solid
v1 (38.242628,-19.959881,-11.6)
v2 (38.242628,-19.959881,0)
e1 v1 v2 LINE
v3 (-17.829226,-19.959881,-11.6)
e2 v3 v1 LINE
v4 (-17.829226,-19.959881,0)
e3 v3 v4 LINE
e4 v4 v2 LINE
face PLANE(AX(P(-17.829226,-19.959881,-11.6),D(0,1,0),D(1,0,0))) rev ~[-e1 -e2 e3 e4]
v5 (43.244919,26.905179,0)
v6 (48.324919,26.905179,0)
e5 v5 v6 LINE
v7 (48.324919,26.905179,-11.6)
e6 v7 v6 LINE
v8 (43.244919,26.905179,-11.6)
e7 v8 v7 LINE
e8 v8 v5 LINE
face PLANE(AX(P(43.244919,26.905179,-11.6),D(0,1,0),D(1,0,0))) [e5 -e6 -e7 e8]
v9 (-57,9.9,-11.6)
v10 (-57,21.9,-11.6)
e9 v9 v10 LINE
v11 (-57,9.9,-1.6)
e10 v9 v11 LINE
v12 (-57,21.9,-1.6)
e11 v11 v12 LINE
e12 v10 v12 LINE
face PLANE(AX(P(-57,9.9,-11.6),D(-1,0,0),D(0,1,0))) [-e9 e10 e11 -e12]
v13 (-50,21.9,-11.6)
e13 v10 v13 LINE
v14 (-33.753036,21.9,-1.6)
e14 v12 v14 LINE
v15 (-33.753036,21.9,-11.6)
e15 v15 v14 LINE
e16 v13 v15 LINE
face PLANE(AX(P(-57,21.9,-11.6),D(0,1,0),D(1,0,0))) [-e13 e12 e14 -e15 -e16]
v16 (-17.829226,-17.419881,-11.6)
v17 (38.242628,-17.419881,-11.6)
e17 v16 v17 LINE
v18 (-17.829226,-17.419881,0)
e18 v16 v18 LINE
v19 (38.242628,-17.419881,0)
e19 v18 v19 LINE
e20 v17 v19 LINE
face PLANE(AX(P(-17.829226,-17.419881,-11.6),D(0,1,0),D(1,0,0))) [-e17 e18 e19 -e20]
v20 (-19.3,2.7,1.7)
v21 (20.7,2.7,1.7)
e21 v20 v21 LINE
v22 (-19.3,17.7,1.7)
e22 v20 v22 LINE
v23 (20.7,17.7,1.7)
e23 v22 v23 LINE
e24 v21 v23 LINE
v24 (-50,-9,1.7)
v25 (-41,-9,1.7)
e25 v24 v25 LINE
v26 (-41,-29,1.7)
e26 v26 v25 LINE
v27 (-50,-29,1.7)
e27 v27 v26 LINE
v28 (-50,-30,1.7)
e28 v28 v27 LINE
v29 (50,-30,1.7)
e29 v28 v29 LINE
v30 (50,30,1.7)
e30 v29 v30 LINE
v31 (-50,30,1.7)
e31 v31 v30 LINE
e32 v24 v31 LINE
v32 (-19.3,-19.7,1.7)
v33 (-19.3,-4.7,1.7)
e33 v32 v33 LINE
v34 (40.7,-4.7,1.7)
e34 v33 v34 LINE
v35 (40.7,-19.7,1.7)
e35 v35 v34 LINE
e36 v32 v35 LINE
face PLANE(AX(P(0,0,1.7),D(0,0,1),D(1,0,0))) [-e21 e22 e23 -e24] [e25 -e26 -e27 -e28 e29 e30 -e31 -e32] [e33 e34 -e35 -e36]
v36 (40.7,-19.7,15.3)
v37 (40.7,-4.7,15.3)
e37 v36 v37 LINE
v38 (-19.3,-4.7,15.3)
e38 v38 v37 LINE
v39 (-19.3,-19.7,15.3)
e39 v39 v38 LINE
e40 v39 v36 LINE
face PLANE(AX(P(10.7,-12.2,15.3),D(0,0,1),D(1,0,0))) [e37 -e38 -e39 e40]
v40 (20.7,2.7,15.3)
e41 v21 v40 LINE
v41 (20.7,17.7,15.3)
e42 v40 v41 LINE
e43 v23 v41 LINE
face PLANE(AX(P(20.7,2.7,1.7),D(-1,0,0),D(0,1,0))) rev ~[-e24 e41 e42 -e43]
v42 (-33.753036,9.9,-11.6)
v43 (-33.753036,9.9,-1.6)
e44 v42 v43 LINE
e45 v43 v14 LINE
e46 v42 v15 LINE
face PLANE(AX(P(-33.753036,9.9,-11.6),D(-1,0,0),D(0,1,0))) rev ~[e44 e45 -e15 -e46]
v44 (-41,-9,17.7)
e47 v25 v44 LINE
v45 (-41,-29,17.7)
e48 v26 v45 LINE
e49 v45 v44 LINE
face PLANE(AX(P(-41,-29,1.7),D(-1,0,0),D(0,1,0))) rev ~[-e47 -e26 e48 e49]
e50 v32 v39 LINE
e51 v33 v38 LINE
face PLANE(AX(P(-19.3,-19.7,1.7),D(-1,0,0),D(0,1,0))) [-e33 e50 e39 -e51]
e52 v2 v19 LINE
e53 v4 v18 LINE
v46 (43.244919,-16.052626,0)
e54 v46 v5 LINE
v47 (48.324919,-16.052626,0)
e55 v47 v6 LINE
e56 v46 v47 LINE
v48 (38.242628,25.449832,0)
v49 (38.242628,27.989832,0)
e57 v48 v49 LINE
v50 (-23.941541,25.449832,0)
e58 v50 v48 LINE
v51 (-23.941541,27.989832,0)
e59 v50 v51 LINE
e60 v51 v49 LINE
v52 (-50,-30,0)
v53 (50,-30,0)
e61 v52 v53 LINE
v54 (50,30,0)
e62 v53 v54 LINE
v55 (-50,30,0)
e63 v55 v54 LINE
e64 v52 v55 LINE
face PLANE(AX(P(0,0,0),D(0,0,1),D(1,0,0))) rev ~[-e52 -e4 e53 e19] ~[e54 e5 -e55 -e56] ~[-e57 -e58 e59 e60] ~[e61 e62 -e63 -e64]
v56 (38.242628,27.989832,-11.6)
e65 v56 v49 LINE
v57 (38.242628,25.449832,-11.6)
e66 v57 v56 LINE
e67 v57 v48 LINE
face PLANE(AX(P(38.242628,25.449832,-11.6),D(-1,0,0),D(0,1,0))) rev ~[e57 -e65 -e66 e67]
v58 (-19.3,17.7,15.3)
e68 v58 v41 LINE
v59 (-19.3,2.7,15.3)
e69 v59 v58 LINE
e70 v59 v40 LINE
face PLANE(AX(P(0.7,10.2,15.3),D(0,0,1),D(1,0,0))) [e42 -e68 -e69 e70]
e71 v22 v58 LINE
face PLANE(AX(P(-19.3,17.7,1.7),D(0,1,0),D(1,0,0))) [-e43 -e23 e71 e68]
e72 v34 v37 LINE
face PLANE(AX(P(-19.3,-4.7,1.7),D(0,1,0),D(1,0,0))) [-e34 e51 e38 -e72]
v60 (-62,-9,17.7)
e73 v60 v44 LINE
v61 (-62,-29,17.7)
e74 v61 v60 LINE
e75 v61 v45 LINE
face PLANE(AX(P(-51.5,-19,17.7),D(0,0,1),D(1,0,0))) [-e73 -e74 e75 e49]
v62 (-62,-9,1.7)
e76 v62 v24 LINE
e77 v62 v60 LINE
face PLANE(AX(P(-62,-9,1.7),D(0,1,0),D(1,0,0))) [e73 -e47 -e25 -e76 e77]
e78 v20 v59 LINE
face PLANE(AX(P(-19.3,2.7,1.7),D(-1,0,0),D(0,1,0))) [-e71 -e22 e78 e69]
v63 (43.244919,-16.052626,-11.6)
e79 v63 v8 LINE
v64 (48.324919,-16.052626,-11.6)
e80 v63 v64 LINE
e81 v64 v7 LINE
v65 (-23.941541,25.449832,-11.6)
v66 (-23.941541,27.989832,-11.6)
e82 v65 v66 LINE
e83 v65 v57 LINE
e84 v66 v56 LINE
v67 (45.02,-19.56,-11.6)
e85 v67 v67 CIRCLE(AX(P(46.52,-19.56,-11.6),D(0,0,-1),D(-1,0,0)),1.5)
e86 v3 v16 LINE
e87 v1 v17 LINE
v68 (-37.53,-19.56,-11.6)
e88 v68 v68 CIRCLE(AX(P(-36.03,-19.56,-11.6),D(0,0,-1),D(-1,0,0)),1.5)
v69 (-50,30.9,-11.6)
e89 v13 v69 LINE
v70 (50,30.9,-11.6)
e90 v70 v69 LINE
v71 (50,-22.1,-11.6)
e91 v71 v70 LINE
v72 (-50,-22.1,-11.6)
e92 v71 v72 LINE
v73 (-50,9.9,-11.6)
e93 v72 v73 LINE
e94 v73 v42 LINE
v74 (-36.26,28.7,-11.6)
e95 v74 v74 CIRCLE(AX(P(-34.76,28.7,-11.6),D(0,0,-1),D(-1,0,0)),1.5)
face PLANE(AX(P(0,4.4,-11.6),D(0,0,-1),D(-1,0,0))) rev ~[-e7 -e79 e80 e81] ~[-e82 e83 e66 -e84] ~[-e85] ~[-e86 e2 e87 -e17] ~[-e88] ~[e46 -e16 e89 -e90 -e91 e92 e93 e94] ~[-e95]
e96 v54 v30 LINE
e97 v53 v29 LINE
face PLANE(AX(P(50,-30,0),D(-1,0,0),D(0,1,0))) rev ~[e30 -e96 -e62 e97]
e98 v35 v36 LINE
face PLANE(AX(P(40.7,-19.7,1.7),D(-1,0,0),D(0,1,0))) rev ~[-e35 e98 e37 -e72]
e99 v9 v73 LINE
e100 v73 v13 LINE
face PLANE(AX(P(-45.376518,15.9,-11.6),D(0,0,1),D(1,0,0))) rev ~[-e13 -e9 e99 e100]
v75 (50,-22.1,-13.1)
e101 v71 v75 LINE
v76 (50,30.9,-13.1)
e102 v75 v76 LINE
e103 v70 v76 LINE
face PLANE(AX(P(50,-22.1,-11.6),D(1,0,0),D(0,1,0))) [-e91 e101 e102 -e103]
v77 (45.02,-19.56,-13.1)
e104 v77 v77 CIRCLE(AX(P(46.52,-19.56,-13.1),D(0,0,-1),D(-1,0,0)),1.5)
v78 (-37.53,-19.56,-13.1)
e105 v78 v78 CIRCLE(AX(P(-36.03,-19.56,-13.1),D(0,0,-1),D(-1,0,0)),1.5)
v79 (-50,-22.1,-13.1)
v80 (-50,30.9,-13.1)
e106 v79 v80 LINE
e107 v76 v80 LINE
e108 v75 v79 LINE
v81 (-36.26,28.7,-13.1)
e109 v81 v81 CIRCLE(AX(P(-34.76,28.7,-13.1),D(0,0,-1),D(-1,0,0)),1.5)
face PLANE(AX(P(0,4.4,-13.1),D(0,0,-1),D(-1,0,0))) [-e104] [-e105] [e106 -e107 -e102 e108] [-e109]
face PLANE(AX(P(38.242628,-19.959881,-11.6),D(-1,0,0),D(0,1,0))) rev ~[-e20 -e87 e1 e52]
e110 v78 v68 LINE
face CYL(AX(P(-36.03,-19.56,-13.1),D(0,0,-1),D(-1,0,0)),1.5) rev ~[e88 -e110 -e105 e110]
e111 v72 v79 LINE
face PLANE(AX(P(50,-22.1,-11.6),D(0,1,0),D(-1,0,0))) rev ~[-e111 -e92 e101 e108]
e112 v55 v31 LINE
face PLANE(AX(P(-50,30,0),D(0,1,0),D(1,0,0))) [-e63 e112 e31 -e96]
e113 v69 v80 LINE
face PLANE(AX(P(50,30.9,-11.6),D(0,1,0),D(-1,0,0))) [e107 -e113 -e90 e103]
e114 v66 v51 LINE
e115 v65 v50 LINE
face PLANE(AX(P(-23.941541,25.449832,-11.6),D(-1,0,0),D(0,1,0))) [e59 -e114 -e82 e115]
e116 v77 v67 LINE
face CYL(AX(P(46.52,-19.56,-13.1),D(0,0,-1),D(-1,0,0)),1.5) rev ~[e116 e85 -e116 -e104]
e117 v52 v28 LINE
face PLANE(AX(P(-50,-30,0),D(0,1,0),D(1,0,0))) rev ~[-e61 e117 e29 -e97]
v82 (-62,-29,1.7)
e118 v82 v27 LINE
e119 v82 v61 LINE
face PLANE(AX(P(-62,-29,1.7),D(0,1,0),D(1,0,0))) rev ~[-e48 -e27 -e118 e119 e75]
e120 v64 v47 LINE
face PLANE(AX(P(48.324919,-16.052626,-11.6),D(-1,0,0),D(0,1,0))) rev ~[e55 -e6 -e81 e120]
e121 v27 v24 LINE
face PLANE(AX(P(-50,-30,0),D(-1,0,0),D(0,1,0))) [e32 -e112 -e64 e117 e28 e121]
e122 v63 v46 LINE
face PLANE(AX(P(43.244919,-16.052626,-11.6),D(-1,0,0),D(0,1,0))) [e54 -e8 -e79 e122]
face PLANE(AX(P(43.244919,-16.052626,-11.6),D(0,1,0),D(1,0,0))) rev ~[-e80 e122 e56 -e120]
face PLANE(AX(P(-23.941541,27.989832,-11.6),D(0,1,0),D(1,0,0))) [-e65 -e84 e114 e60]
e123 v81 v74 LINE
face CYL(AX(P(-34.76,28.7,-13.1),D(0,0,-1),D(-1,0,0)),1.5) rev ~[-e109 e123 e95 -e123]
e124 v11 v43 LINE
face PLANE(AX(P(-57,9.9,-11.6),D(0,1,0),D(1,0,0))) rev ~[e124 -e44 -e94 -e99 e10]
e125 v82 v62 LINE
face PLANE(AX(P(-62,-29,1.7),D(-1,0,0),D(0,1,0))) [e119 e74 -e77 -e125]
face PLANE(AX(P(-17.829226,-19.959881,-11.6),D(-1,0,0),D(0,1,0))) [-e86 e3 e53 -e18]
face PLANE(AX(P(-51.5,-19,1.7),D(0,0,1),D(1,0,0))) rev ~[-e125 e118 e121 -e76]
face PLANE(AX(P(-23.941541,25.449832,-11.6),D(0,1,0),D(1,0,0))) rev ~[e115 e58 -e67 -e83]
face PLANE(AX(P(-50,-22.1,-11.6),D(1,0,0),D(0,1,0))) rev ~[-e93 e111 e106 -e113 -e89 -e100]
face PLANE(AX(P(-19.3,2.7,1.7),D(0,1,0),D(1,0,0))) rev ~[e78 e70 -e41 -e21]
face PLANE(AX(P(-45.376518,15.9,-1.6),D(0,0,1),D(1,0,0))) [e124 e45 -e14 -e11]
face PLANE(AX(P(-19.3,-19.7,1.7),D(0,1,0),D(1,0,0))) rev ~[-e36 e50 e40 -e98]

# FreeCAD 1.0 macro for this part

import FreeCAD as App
import Part
import Sketcher

V = App.Vector

doc = App.newDocument("Part")
body = doc.addObject("PartDesign::Body", "Body")

sketch1 = body.newObject("Sketcher::SketchObject", "Sketch")
sketch1.AttachmentSupport = (doc.getObject("XY_Plane"), [""])
sketch1.MapMode = "FlatFace"
sketch1.addGeometry([
    Part.LineSegment(V(-50, 30, 0), V(-50, -30, 0)),
    Part.LineSegment(V(-50, -30, 0), V(50, -30, 0)),
    Part.LineSegment(V(50, -30, 0), V(50, 30, 0)),
    Part.LineSegment(V(50, 30, 0), V(-50, 30, 0)),
], False)
sketch1.addConstraint([
    Sketcher.Constraint("Coincident", 0, 2, 1, 1),
    Sketcher.Constraint("Coincident", 1, 2, 2, 1),
    Sketcher.Constraint("Coincident", 2, 2, 3, 1),
    Sketcher.Constraint("Coincident", 3, 2, 0, 1),
    Sketcher.Constraint("Vertical", 0),
    Sketcher.Constraint("Horizontal", 1),
    Sketcher.Constraint("Vertical", 2),
    Sketcher.Constraint("Horizontal", 3),
    Sketcher.Constraint("Symmetric", 0, 2, 2, 2, -1, 1),
    Sketcher.Constraint("DistanceX", 1, 1, 1, 2, 100.0),
    Sketcher.Constraint("DistanceY", 0, 2, 0, 1, 60.0),
])
pad1 = body.newObject("PartDesign::Pad", "Pad")
pad1.Profile = sketch1
pad1.Length = 1.7

sketch2 = body.newObject("Sketcher::SketchObject", "Sketch001")
sketch2.AttachmentSupport = (doc.getObject("XY_Plane"), [""])
sketch2.MapMode = "FlatFace"
sketch2.AttachmentOffset = App.Placement(V(0, 0, 1.7), App.Rotation())
sketch2.addGeometry([
    Part.LineSegment(V(-19, -5, 0), V(-19, -20, 0)),
    Part.LineSegment(V(-19, -20, 0), V(41, -20, 0)),
    Part.LineSegment(V(41, -20, 0), V(41, -5, 0)),
    Part.LineSegment(V(41, -5, 0), V(-19, -5, 0)),
    Part.LineSegment(V(-19, 18, 0), V(-19, 3, 0)),
    Part.LineSegment(V(-19, 3, 0), V(21, 3, 0)),
    Part.LineSegment(V(21, 3, 0), V(21, 18, 0)),
    Part.LineSegment(V(21, 18, 0), V(-19, 18, 0)),
], False)
sketch2.addConstraint([
    Sketcher.Constraint("Coincident", 0, 2, 1, 1),
    Sketcher.Constraint("Coincident", 1, 2, 2, 1),
    Sketcher.Constraint("Coincident", 2, 2, 3, 1),
    Sketcher.Constraint("Coincident", 3, 2, 0, 1),
    Sketcher.Constraint("Coincident", 4, 2, 5, 1),
    Sketcher.Constraint("Coincident", 5, 2, 6, 1),
    Sketcher.Constraint("Coincident", 6, 2, 7, 1),
    Sketcher.Constraint("Coincident", 7, 2, 4, 1),
    Sketcher.Constraint("Vertical", 0),
    Sketcher.Constraint("Horizontal", 1),
    Sketcher.Constraint("Vertical", 2),
    Sketcher.Constraint("Horizontal", 3),
    Sketcher.Constraint("Vertical", 4),
    Sketcher.Constraint("Horizontal", 5),
    Sketcher.Constraint("Vertical", 6),
    Sketcher.Constraint("Horizontal", 7),
    Sketcher.Constraint("Vertical", 3, 2, 4, 2),
    Sketcher.Constraint("Equal", 2, 4),
    Sketcher.Constraint("DistanceX", 1, 1, 1, 2, 60.0),
    Sketcher.Constraint("DistanceX", 5, 1, 5, 2, 40.0),
    Sketcher.Constraint("DistanceY", 0, 2, 0, 1, 15.0),
    Sketcher.Constraint("DistanceX", 0, 2, -1, 1, 19.3),
    Sketcher.Constraint("DistanceY", 0, 2, -1, 1, 19.7),
    Sketcher.Constraint("DistanceY", -1, 1, 4, 2, 2.7),
])
pad2 = body.newObject("PartDesign::Pad", "Pad001")
pad2.Profile = sketch2
pad2.Length = 13.6
body2 = doc.addObject("PartDesign::Body", "Body001")

sketch3 = body2.newObject("Sketcher::SketchObject", "Sketch002")
sketch3.AttachmentSupport = (doc.getObject("XY_Plane001"), [""])
sketch3.MapMode = "FlatFace"
sketch3.AttachmentOffset = App.Placement(V(0, 0, -11.6), App.Rotation())
sketch3.addGeometry([
    Part.LineSegment(V(50, 31, 0), V(50, -22, 0)),
    Part.LineSegment(V(50, -22, 0), V(-50, -22, 0)),
    Part.LineSegment(V(-50, -22, 0), V(-50, 31, 0)),
    Part.LineSegment(V(-50, 31, 0), V(50, 31, 0)),
], False)
sketch3.addConstraint([
    Sketcher.Constraint("Coincident", 0, 2, 1, 1),
    Sketcher.Constraint("Coincident", 1, 2, 2, 1),
    Sketcher.Constraint("Coincident", 2, 2, 3, 1),
    Sketcher.Constraint("Coincident", 3, 2, 0, 1),
    Sketcher.Constraint("Vertical", 0),
    Sketcher.Constraint("Horizontal", 1),
    Sketcher.Constraint("Vertical", 2),
    Sketcher.Constraint("Horizontal", 3),
    Sketcher.Constraint("DistanceX", 1, 2, 1, 1, 100.0),
    Sketcher.Constraint("DistanceY", 0, 2, 0, 1, 53.0),
    Sketcher.Constraint("DistanceX", -1, 1, 0, 2, 50.0),
    Sketcher.Constraint("DistanceY", 0, 2, -1, 1, 22.1),
])
pad3 = body2.newObject("PartDesign::Pad", "Pad002")
pad3.Profile = sketch3
pad3.Length = 1.5
pad3.Reversed = True
body.AllowCompound = True
doc.recompute()

boolean = body.newObject("PartDesign::Boolean", "Boolean")
boolean.Type = "Fuse"
boolean.addObjects([body2])

sketch4 = body.newObject("Sketcher::SketchObject", "Sketch003")
sketch4.AttachmentSupport = (doc.getObject("XY_Plane"), [""])
sketch4.MapMode = "FlatFace"
sketch4.AttachmentOffset = App.Placement(V(0, 0, -11.6), App.Rotation())
sketch4.addGeometry([
    Part.LineSegment(V(-23.9, 28, 0), V(-23.9, 25.4, 0)),
    Part.LineSegment(V(-23.9, 25.4, 0), V(38.2, 25.4, 0)),
    Part.LineSegment(V(38.2, 25.4, 0), V(38.2, 28, 0)),
    Part.LineSegment(V(38.2, 28, 0), V(-23.9, 28, 0)),
    Part.LineSegment(V(43.2, 26.9, 0), V(43.2, -16.1, 0)),
    Part.LineSegment(V(43.2, -16.1, 0), V(48.3, -16.1, 0)),
    Part.LineSegment(V(48.3, -16.1, 0), V(48.3, 26.9, 0)),
    Part.LineSegment(V(48.3, 26.9, 0), V(43.2, 26.9, 0)),
    Part.LineSegment(V(-17.8, -17.4, 0), V(-17.8, -20, 0)),
    Part.LineSegment(V(-17.8, -20, 0), V(38.2, -20, 0)),
    Part.LineSegment(V(38.2, -20, 0), V(38.2, -17.4, 0)),
    Part.LineSegment(V(38.2, -17.4, 0), V(-17.8, -17.4, 0)),
], False)
sketch4.addConstraint([
    Sketcher.Constraint("Coincident", 0, 2, 1, 1),
    Sketcher.Constraint("Coincident", 1, 2, 2, 1),
    Sketcher.Constraint("Coincident", 2, 2, 3, 1),
    Sketcher.Constraint("Coincident", 3, 2, 0, 1),
    Sketcher.Constraint("Coincident", 4, 2, 5, 1),
    Sketcher.Constraint("Coincident", 5, 2, 6, 1),
    Sketcher.Constraint("Coincident", 6, 2, 7, 1),
    Sketcher.Constraint("Coincident", 7, 2, 4, 1),
    Sketcher.Constraint("Coincident", 8, 2, 9, 1),
    Sketcher.Constraint("Coincident", 9, 2, 10, 1),
    Sketcher.Constraint("Coincident", 10, 2, 11, 1),
    Sketcher.Constraint("Coincident", 11, 2, 8, 1),
    Sketcher.Constraint("Vertical", 0),
    Sketcher.Constraint("Horizontal", 1),
    Sketcher.Constraint("Vertical", 2),
    Sketcher.Constraint("Horizontal", 3),
    Sketcher.Constraint("Vertical", 4),
    Sketcher.Constraint("Horizontal", 5),
    Sketcher.Constraint("Vertical", 6),
    Sketcher.Constraint("Horizontal", 7),
    Sketcher.Constraint("Vertical", 8),
    Sketcher.Constraint("Horizontal", 9),
    Sketcher.Constraint("Vertical", 10),
    Sketcher.Constraint("Horizontal", 11),
    Sketcher.Constraint("Vertical", 2, 2, 9, 2),
    Sketcher.Constraint("Equal", 2, 8),
    Sketcher.Constraint("DistanceX", 5, 1, 5, 2, 5.08),
    Sketcher.Constraint("DistanceY", 0, 2, 0, 1, 2.54),
    Sketcher.Constraint("DistanceX", 1, 1, 1, 2, 62.184169),
    Sketcher.Constraint("DistanceX", 9, 1, 9, 2, 56.071855),
    Sketcher.Constraint("DistanceY", 4, 2, 4, 1, 42.957805),
    Sketcher.Constraint("DistanceX", 0, 2, -1, 1, 23.941541),
    Sketcher.Constraint("DistanceX", -1, 1, 4, 2, 43.244919),
    Sketcher.Constraint("DistanceY", -1, 1, 6, 2, 26.905179),
    Sketcher.Constraint("DistanceY", 8, 2, -1, 1, 19.959881),
    Sketcher.Constraint("DistanceY", 4, 2, 1, 2, 41.502458),
])
pad4 = body.newObject("PartDesign::Pad", "Pad003")
pad4.Profile = sketch4
pad4.Length = 11.6

sketch5 = body.newObject("Sketcher::SketchObject", "Sketch004")
sketch5.AttachmentSupport = (doc.getObject("XY_Plane"), [""])
sketch5.MapMode = "FlatFace"
sketch5.AttachmentOffset = App.Placement(V(0, 0, 1.7), App.Rotation())
sketch5.addGeometry([
    Part.LineSegment(V(-62, -9, 0), V(-62, -29, 0)),
    Part.LineSegment(V(-62, -29, 0), V(-41, -29, 0)),
    Part.LineSegment(V(-41, -29, 0), V(-41, -9, 0)),
    Part.LineSegment(V(-41, -9, 0), V(-62, -9, 0)),
], False)
sketch5.addConstraint([
    Sketcher.Constraint("Coincident", 0, 2, 1, 1),
    Sketcher.Constraint("Coincident", 1, 2, 2, 1),
    Sketcher.Constraint("Coincident", 2, 2, 3, 1),
    Sketcher.Constraint("Coincident", 3, 2, 0, 1),
    Sketcher.Constraint("Vertical", 0),
    Sketcher.Constraint("Horizontal", 1),
    Sketcher.Constraint("Vertical", 2),
    Sketcher.Constraint("Horizontal", 3),
    Sketcher.Constraint("DistanceX", 1, 1, 1, 2, 21.0),
    Sketcher.Constraint("DistanceY", 0, 2, 0, 1, 20.0),
    Sketcher.Constraint("DistanceX", 0, 2, -1, 1, 62.0),
    Sketcher.Constraint("DistanceY", 0, 2, -1, 1, 29.0),
])
pad5 = body.newObject("PartDesign::Pad", "Pad004")
pad5.Profile = sketch5
pad5.Length = 16

sketch6 = body.newObject("Sketcher::SketchObject", "Sketch005")
sketch6.AttachmentSupport = (doc.getObject("XY_Plane"), [""])
sketch6.MapMode = "FlatFace"
sketch6.AttachmentOffset = App.Placement(V(0, 0, -11.6), App.Rotation())
sketch6.addGeometry([
    Part.LineSegment(V(-57, 22, 0), V(-57, 10, 0)),
    Part.LineSegment(V(-57, 10, 0), V(-34, 10, 0)),
    Part.LineSegment(V(-34, 10, 0), V(-34, 22, 0)),
    Part.LineSegment(V(-34, 22, 0), V(-57, 22, 0)),
], False)
sketch6.addConstraint([
    Sketcher.Constraint("Coincident", 0, 2, 1, 1),
    Sketcher.Constraint("Coincident", 1, 2, 2, 1),
    Sketcher.Constraint("Coincident", 2, 2, 3, 1),
    Sketcher.Constraint("Coincident", 3, 2, 0, 1),
    Sketcher.Constraint("Vertical", 0),
    Sketcher.Constraint("Horizontal", 1),
    Sketcher.Constraint("Vertical", 2),
    Sketcher.Constraint("Horizontal", 3),
    Sketcher.Constraint("DistanceY", 0, 2, 0, 1, 12.0),
    Sketcher.Constraint("DistanceX", 0, 2, -1, 1, 57.0),
    Sketcher.Constraint("DistanceY", -1, 1, 0, 2, 9.9),
    Sketcher.Constraint("DistanceX", 1, 1, 1, 2, 23.246964),
])
pad6 = body.newObject("PartDesign::Pad", "Pad005")
pad6.Profile = sketch6
pad6.Length = 10

sketch7 = body.newObject("Sketcher::SketchObject", "Sketch006")
sketch7.AttachmentSupport = (doc.getObject("XY_Plane"), [""])
sketch7.MapMode = "FlatFace"
sketch7.AttachmentOffset = App.Placement(V(0, 0, -13.1), App.Rotation())
sketch7.addGeometry([
    Part.Circle(V(-34.8, 28.7, 0), V(0, 0, 1), 1.5),
    Part.Circle(V(-36, -19.6, 0), V(0, 0, 1), 1.5),
    Part.Circle(V(46.5, -19.6, 0), V(0, 0, 1), 1.5),
], False)
sketch7.addConstraint([
    Sketcher.Constraint("Equal", 0, 1),
    Sketcher.Constraint("Equal", 1, 2),
    Sketcher.Constraint("Horizontal", 1, 3, 2, 3),
    Sketcher.Constraint("Diameter", 0, 3.0),
    Sketcher.Constraint("DistanceY", -1, 1, 0, 3, 28.7),
    Sketcher.Constraint("DistanceX", 0, 3, -1, 1, 34.76),
    Sketcher.Constraint("DistanceX", 1, 3, -1, 1, 36.03),
    Sketcher.Constraint("DistanceY", 1, 3, -1, 1, 19.56),
    Sketcher.Constraint("DistanceX", -1, 1, 2, 3, 46.52),
])
pocket1 = body.newObject("PartDesign::Pocket", "Pocket")
pocket1.Profile = sketch7
pocket1.Length = 10
pocket1.Reversed = True

doc.recompute()
